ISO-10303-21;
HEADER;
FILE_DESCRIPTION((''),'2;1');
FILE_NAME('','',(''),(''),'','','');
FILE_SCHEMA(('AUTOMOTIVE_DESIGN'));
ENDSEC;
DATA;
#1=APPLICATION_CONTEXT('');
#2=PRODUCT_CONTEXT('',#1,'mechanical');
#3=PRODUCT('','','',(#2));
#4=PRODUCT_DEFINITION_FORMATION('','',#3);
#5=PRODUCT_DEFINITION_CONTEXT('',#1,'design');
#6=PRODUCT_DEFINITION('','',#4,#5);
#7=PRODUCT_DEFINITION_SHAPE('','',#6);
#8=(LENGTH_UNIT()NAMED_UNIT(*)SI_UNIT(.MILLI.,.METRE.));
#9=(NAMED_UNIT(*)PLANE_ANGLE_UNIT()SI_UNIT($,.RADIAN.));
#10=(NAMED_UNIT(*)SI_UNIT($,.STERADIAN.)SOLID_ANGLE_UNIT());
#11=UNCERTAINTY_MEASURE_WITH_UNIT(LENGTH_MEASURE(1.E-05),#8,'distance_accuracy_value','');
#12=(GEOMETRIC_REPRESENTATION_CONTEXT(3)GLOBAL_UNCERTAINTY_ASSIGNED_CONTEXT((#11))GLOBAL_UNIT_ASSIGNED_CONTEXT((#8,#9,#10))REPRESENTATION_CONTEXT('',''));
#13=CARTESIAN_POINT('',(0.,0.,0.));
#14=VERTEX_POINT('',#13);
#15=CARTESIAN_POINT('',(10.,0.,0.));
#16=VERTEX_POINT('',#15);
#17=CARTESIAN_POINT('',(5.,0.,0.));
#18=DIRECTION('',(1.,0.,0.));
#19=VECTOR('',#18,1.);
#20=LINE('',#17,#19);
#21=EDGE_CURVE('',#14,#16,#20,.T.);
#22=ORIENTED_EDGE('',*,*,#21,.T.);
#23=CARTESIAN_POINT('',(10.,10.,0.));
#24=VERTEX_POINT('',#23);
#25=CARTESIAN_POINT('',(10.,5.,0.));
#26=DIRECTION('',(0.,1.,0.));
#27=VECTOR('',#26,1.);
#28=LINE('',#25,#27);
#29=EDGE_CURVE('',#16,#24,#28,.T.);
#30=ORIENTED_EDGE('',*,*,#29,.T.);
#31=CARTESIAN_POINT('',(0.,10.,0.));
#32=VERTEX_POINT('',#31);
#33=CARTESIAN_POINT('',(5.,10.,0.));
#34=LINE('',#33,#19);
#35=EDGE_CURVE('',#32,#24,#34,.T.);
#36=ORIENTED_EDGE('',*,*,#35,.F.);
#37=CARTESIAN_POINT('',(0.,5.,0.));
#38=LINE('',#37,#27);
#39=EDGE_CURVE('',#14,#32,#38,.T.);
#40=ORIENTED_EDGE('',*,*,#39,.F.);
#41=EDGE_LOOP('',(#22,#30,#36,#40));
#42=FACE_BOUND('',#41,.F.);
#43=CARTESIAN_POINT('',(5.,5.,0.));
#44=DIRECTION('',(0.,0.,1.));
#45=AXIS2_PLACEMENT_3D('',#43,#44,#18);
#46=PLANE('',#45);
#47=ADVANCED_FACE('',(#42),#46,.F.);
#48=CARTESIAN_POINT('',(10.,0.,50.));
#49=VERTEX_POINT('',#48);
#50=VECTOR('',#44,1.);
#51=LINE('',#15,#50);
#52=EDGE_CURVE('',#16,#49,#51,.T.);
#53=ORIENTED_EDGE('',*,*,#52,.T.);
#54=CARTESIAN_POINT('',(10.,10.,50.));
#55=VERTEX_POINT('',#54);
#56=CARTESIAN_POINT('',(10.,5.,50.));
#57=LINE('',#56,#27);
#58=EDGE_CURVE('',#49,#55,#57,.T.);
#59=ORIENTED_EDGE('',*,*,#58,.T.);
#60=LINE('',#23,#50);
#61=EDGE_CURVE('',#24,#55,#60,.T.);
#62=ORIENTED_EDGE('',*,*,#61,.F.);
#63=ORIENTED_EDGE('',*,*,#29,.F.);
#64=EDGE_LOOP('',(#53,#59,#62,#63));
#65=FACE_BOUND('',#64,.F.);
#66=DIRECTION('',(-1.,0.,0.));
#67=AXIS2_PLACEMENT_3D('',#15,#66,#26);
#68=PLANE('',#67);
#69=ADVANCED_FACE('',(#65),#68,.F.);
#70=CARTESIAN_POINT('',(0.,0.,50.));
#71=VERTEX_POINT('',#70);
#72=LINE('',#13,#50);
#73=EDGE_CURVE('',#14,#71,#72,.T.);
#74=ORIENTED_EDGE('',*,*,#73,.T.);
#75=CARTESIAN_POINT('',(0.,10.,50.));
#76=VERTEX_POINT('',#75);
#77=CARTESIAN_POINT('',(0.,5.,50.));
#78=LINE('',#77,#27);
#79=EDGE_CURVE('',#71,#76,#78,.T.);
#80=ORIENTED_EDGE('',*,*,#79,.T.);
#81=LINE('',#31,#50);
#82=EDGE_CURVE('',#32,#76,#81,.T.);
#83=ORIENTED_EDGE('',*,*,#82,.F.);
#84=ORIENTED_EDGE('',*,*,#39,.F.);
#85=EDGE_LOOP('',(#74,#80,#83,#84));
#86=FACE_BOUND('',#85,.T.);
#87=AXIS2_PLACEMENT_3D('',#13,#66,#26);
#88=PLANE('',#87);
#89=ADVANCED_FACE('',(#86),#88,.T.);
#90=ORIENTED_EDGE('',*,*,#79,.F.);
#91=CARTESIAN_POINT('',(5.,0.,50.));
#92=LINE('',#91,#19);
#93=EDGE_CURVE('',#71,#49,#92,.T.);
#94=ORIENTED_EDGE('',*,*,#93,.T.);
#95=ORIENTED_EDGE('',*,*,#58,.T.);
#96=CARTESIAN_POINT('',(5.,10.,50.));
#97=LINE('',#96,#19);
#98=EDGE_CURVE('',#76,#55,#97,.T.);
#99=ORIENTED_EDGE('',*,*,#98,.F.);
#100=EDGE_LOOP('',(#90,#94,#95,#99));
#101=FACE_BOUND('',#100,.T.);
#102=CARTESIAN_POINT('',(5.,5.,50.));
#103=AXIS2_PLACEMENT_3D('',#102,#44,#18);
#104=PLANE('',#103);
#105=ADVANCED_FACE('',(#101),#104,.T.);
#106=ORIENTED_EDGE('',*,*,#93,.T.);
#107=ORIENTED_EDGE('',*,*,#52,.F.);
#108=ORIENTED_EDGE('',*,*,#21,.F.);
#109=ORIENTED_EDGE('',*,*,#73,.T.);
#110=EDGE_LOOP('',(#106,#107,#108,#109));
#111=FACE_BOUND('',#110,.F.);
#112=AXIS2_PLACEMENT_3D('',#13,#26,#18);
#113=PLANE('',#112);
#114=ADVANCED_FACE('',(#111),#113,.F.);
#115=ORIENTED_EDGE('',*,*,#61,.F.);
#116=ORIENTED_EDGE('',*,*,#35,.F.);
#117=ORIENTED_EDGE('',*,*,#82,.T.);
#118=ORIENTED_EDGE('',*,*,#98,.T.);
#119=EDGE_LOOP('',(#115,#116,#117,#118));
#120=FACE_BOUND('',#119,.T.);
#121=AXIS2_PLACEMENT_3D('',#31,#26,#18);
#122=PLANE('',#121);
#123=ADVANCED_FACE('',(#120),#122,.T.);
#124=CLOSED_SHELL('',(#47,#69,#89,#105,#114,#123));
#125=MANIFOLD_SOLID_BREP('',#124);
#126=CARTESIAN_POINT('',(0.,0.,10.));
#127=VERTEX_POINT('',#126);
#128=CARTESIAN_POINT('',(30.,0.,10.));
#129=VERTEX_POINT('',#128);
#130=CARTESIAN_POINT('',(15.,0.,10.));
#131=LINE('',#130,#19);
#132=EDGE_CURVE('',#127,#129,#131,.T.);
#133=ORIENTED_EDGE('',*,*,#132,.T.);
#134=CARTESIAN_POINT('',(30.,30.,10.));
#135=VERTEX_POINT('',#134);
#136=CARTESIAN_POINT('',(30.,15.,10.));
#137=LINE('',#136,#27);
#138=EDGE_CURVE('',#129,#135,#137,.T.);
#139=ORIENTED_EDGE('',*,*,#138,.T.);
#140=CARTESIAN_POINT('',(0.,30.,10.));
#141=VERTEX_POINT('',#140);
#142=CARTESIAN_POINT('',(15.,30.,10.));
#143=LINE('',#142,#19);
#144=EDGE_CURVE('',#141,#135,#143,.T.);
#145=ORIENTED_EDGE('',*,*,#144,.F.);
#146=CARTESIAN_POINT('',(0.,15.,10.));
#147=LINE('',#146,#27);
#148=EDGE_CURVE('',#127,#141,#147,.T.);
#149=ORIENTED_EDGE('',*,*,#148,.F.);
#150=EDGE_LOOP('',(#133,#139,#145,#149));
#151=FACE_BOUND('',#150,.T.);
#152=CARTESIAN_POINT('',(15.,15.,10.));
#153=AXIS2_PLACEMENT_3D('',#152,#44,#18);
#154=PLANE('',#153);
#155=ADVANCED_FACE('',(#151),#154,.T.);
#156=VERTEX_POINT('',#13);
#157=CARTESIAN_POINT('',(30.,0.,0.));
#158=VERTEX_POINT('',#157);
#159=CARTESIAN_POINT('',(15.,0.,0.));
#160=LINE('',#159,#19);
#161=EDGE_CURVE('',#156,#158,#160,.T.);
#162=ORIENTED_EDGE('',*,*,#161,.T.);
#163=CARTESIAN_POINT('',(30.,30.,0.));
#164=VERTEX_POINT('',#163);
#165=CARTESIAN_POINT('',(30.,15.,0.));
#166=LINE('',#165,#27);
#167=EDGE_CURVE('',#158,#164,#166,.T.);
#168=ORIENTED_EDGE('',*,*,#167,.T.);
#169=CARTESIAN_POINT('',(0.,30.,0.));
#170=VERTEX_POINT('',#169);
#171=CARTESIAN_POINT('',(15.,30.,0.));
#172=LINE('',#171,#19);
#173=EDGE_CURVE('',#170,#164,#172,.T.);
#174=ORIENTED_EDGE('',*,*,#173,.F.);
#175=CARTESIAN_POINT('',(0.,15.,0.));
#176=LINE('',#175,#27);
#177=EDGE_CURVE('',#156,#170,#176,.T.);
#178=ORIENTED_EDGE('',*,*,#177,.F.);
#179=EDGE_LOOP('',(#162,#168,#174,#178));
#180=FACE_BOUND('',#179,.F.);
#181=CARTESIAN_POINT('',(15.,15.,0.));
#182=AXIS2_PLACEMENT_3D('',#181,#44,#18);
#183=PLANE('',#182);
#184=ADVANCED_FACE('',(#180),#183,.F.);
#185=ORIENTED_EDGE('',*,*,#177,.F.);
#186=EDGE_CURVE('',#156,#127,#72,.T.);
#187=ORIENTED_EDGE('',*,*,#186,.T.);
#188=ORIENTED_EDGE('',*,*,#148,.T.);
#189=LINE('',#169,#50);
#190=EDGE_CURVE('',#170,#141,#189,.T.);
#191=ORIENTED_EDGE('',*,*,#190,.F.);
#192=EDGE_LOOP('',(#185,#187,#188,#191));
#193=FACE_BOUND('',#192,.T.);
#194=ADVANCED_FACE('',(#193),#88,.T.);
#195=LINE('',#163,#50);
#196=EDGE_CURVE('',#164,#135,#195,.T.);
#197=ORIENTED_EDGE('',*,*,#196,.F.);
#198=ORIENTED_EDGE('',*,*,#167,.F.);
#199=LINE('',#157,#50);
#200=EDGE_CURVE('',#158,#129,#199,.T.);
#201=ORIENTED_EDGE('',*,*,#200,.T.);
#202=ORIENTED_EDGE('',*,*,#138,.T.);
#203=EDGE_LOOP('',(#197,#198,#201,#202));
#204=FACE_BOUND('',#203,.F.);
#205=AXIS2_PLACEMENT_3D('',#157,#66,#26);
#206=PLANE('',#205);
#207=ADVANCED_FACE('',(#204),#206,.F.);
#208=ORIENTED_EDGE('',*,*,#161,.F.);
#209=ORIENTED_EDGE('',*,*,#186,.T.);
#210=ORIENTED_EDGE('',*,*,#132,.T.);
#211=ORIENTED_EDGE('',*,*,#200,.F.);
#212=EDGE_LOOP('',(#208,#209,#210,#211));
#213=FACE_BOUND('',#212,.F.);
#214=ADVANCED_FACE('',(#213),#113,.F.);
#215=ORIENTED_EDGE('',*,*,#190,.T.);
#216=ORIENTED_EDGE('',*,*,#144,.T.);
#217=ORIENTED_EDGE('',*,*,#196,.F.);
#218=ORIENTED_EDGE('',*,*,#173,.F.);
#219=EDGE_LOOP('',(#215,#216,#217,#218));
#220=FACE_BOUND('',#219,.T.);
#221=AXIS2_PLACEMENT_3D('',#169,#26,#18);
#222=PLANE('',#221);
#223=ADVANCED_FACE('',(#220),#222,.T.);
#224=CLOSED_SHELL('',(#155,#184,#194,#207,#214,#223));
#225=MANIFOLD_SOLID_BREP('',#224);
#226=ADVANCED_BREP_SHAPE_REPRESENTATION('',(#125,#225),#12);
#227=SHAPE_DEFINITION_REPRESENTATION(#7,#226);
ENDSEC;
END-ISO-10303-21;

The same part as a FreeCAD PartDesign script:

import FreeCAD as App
import Part
import Sketcher
from FreeCAD import Vector


def add_polygon(sketch, points):
    """Adds a closed chain of lines whose ends are joined by coincident constraints."""
    first, n = sketch.GeometryCount, len(points)
    for a, b in zip(points, points[1:] + points[:1]):
        sketch.addGeometry(Part.LineSegment(App.Vector(*a, 0), App.Vector(*b, 0)), False)
    for i in range(n):
        sketch.addConstraint(Sketcher.Constraint("Coincident", first + i, 2, first + (i + 1) % n, 1))

doc = App.newDocument("Part")
body = doc.addObject("PartDesign::Body", "Body")

# Sketch on XY plane
sketch1 = body.newObject("Sketcher::SketchObject", "Sketch")
sketch1.AttachmentSupport = (doc.getObject("XY_Plane"), [""])
sketch1.MapMode = "FlatFace"
add_polygon(sketch1, [(0, 30), (0, 0), (30, 0), (30, 30)])  # lines 0-3
sketch1.addConstraint(Sketcher.Constraint("Vertical", 0))
sketch1.addConstraint(Sketcher.Constraint("Horizontal", 1))
sketch1.addConstraint(Sketcher.Constraint("Vertical", 2))
sketch1.addConstraint(Sketcher.Constraint("Horizontal", 3))
sketch1.addConstraint(Sketcher.Constraint("Coincident", 0, 2, -1, 1))
sketch1.addConstraint(Sketcher.Constraint("Equal", 3, 0))
sketch1.addConstraint(Sketcher.Constraint("DistanceX", 1, 1, 1, 2, 30.0))
pad1 = body.newObject("PartDesign::Pad", "Pad")
pad1.Profile = sketch1
pad1.Length = 10
body2 = doc.addObject("PartDesign::Body", "Body001")

# Sketch on XY plane
sketch2 = body2.newObject("Sketcher::SketchObject", "Sketch001")
sketch2.AttachmentSupport = (doc.getObject("XY_Plane001"), [""])
sketch2.MapMode = "FlatFace"
add_polygon(sketch2, [(0, 10), (0, 0), (10, 0), (10, 10)])  # lines 0-3
sketch2.addConstraint(Sketcher.Constraint("Vertical", 0))
sketch2.addConstraint(Sketcher.Constraint("Horizontal", 1))
sketch2.addConstraint(Sketcher.Constraint("Vertical", 2))
sketch2.addConstraint(Sketcher.Constraint("Horizontal", 3))
sketch2.addConstraint(Sketcher.Constraint("Coincident", 0, 2, -1, 1))
sketch2.addConstraint(Sketcher.Constraint("Equal", 3, 0))
sketch2.addConstraint(Sketcher.Constraint("DistanceX", 1, 1, 1, 2, 10.0))
pad2 = body2.newObject("PartDesign::Pad", "Pad001")
pad2.Profile = sketch2
pad2.Length = 50

doc.recompute()
